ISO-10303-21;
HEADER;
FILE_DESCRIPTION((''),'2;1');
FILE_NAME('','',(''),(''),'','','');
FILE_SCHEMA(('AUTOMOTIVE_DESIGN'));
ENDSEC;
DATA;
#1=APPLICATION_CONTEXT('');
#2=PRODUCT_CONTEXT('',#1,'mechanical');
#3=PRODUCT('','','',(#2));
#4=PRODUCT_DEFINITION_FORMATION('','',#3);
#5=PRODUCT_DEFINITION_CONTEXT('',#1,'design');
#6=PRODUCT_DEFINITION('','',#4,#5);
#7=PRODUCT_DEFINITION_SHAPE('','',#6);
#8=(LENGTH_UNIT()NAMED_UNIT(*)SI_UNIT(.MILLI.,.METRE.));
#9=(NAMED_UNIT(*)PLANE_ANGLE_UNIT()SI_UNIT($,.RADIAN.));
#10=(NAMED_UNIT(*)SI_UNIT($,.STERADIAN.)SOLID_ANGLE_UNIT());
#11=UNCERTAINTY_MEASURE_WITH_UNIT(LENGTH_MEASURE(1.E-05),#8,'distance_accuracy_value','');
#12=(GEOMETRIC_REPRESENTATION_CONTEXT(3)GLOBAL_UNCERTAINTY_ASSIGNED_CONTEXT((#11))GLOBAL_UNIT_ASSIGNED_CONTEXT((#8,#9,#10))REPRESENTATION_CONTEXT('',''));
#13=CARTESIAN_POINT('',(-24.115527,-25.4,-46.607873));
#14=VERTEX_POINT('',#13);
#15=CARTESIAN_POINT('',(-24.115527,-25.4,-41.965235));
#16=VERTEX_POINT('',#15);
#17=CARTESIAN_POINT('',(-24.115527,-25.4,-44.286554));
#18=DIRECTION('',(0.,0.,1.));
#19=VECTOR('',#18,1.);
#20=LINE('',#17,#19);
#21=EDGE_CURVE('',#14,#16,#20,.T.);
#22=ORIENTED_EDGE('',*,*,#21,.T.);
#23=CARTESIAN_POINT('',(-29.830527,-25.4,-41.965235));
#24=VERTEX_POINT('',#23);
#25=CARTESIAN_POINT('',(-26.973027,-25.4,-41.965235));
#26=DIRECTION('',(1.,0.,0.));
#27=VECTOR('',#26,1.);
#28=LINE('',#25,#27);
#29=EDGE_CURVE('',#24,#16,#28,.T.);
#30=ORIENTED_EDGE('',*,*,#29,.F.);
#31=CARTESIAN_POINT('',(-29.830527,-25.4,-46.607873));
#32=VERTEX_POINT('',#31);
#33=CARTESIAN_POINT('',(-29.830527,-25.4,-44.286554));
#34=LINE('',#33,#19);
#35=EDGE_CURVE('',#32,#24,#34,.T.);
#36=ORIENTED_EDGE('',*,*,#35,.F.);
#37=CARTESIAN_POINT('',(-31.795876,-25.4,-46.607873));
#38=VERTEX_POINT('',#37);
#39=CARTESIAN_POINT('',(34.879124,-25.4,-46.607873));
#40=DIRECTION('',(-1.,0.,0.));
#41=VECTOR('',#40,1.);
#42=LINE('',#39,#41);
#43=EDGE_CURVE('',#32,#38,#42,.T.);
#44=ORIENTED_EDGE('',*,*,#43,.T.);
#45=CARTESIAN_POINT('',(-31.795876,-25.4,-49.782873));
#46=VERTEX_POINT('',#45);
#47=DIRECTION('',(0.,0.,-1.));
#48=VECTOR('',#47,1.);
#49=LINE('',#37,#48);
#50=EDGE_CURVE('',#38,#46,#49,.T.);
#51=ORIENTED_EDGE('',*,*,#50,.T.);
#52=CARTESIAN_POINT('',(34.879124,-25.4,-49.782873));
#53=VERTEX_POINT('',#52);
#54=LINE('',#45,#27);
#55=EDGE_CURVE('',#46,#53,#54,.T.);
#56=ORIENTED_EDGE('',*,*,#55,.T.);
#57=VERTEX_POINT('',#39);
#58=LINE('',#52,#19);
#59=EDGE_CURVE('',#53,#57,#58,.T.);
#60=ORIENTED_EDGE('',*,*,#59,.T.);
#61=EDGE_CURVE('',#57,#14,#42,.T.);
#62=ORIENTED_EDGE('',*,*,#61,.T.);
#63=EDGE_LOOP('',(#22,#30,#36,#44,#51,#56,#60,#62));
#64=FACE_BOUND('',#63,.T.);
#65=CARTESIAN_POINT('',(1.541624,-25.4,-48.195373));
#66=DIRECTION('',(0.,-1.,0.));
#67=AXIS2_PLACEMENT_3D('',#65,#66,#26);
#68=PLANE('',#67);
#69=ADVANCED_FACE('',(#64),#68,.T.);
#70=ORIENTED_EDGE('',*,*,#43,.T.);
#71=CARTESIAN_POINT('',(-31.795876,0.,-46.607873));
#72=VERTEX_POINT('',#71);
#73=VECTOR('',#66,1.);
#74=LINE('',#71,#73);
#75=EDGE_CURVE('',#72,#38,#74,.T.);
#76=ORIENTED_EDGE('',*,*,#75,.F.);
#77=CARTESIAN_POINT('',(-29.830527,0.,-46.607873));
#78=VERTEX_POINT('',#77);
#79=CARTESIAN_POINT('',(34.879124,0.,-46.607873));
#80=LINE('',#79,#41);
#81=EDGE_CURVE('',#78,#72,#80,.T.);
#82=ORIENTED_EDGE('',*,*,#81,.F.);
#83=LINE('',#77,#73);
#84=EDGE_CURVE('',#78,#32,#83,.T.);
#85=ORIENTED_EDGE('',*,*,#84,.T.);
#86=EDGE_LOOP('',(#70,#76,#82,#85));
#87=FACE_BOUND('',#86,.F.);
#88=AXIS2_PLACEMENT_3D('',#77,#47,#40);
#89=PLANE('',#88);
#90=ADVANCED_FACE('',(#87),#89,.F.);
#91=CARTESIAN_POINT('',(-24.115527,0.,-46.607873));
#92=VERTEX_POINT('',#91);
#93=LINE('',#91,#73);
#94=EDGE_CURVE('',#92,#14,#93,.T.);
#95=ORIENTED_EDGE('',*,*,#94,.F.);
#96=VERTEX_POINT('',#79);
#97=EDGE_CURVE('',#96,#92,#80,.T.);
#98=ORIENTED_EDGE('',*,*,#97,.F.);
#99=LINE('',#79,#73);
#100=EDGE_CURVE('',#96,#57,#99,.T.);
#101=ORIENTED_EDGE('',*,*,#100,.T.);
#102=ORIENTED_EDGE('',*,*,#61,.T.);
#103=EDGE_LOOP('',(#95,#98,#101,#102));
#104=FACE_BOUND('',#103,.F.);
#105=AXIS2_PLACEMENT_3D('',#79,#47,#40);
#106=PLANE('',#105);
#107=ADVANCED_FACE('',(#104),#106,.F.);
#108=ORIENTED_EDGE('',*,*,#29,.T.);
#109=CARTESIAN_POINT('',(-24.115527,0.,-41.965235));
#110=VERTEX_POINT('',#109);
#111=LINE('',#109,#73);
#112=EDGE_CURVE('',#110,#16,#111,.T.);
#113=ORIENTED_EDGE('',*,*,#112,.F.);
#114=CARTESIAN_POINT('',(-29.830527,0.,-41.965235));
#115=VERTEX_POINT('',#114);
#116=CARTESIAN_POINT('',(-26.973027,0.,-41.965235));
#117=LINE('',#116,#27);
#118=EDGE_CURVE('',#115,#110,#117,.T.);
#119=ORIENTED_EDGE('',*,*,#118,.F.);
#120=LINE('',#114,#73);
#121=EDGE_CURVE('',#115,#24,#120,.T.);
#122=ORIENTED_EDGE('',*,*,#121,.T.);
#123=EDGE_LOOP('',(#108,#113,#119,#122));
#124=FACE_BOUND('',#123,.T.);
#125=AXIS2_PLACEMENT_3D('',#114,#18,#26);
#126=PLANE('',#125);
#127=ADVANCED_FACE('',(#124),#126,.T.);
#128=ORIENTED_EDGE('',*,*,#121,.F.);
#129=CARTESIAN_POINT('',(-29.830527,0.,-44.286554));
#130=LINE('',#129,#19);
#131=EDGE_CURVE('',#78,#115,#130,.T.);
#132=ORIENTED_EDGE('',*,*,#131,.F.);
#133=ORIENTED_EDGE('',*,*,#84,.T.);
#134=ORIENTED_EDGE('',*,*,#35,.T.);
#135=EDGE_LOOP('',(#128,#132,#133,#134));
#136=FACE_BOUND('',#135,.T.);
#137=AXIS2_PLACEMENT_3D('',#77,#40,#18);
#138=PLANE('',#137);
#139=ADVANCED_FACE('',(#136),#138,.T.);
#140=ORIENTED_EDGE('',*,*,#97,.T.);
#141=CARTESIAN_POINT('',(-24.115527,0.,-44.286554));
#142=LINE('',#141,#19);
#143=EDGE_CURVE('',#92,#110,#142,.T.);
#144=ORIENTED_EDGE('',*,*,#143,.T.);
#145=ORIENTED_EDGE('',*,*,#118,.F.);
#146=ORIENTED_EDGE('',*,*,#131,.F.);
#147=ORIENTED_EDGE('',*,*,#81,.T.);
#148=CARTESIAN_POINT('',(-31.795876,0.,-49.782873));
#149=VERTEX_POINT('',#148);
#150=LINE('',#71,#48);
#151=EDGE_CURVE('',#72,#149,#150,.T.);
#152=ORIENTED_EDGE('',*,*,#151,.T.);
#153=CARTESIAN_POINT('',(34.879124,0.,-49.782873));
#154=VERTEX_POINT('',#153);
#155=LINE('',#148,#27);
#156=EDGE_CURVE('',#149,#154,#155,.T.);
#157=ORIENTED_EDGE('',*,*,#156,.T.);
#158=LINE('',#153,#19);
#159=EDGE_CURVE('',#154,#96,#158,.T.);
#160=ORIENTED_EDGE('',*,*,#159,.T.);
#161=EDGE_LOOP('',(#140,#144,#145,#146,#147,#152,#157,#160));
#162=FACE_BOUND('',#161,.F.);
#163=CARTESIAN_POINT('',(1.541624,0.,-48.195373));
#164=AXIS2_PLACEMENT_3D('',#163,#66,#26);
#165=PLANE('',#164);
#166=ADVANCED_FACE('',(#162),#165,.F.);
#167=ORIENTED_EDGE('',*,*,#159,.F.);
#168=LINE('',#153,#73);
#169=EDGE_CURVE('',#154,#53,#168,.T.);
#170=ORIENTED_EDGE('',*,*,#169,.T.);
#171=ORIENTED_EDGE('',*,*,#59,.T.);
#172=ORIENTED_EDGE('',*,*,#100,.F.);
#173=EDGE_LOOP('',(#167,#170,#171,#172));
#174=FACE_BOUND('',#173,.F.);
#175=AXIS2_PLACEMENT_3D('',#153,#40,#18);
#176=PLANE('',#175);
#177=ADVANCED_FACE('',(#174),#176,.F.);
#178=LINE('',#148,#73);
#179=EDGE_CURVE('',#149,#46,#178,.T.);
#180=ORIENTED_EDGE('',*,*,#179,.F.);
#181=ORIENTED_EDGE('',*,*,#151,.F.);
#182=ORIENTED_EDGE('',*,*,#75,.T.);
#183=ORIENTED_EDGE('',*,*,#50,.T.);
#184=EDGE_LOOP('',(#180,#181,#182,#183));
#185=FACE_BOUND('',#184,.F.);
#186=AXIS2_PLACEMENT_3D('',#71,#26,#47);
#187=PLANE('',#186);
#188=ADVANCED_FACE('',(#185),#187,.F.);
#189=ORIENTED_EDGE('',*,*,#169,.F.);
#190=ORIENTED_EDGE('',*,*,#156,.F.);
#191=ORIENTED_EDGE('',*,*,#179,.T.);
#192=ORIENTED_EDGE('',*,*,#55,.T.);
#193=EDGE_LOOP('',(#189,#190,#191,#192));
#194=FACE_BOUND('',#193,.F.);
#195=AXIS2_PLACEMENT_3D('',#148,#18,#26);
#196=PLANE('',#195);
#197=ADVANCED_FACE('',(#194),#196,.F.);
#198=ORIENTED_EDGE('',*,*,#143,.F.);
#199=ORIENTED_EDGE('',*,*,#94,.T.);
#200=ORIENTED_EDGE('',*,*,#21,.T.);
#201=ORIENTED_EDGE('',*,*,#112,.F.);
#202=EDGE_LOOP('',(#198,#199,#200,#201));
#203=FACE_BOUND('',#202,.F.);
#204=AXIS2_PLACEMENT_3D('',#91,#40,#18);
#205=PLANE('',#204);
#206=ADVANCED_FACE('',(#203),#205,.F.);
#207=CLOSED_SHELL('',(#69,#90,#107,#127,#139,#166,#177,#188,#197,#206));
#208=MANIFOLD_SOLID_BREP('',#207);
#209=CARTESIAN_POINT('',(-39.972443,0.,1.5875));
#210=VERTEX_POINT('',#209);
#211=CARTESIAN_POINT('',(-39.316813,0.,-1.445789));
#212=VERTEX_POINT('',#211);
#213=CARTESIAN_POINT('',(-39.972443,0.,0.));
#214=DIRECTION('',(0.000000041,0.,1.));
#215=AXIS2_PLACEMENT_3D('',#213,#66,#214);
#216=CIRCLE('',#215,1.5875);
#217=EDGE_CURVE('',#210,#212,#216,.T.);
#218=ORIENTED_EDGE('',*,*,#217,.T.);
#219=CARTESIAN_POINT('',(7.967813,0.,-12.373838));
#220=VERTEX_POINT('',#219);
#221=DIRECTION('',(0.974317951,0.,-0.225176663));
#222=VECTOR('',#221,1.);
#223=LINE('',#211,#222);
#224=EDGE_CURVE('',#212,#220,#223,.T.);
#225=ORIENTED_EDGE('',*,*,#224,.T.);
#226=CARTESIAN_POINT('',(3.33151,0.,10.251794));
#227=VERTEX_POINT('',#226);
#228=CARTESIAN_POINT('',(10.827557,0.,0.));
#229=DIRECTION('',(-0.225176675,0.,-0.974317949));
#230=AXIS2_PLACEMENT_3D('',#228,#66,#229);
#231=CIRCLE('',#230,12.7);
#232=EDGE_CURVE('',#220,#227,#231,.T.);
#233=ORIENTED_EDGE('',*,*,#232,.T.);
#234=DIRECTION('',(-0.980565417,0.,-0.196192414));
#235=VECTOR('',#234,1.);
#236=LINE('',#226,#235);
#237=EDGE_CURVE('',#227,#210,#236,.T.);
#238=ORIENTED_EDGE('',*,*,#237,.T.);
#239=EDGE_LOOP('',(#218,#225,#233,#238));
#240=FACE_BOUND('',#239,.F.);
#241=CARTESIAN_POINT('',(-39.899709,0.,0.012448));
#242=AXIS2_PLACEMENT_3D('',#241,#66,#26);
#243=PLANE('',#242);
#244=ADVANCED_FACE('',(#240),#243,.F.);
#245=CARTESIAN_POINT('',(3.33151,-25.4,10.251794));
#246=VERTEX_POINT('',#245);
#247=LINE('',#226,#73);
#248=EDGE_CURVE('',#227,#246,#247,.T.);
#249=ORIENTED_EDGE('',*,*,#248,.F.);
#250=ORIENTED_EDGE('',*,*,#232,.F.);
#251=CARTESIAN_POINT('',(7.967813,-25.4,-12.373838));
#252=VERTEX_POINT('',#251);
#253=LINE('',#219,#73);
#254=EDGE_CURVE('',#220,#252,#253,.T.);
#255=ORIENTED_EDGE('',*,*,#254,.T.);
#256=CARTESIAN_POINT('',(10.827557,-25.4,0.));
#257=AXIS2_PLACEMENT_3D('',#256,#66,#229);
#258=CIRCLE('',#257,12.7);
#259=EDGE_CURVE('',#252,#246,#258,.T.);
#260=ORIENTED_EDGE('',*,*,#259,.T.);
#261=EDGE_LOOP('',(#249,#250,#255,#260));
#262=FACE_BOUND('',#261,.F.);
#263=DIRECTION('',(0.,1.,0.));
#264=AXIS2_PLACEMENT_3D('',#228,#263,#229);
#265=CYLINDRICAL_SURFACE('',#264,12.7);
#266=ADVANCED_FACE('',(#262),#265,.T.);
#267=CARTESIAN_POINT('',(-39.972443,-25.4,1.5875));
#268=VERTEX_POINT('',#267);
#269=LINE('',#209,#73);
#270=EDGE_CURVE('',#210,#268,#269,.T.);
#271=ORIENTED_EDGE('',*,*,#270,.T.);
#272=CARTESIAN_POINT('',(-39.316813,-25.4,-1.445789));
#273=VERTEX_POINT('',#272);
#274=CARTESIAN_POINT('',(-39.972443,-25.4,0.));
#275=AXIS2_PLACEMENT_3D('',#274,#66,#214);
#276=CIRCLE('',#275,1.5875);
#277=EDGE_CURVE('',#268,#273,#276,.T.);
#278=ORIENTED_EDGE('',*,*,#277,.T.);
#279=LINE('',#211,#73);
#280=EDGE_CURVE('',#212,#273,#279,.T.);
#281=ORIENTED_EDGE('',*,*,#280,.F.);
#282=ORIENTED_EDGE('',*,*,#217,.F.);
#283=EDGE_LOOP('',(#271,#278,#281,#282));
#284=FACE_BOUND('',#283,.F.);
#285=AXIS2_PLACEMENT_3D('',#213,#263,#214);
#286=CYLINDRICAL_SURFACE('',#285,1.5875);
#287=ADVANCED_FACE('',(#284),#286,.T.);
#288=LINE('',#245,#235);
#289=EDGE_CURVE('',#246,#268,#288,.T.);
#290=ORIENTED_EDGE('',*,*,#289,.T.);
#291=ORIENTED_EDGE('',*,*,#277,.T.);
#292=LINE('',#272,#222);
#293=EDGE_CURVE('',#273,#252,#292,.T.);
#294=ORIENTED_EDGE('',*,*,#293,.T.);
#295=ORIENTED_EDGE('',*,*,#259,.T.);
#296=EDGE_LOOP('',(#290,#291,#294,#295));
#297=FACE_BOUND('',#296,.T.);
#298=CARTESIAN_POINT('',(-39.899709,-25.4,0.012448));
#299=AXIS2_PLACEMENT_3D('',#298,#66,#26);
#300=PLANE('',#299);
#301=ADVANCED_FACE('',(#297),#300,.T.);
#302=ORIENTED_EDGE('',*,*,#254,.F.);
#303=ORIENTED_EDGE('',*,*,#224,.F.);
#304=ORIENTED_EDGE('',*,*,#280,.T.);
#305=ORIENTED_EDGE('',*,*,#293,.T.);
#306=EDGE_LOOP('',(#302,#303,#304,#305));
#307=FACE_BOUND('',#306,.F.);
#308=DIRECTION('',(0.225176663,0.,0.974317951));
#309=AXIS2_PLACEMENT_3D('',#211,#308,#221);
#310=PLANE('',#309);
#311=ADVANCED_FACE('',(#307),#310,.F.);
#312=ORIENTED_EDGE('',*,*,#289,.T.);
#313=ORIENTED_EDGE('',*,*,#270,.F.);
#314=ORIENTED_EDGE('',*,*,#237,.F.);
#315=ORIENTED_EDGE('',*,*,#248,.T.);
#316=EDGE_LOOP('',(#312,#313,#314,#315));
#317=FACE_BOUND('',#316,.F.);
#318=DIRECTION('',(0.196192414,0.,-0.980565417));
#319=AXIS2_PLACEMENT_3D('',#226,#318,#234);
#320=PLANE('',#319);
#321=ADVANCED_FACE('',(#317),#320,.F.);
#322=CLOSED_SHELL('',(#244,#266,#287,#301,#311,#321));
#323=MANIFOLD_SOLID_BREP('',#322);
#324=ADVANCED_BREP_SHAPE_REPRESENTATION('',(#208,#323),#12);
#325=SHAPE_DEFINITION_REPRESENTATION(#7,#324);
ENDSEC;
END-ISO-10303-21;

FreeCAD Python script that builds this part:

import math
import FreeCAD as App
import Part
import Sketcher

V = App.Vector
Q = App.Units.Quantity

doc = App.newDocument("Part")
body = doc.addObject("PartDesign::Body", "Body")
body.AllowCompound = True

# Sketch on XZ plane
sketch1 = body.newObject("Sketcher::SketchObject", "Sketch")
sketch1.AttachmentSupport = (doc.getObject("XZ_Plane"), [""])
sketch1.MapMode = "FlatFace"
sketch1.addGeometry([
    Part.LineSegment(V(-31.8, -46.6, 0), V(-31.8, -49.8, 0)),  # 0
    Part.LineSegment(V(-31.8, -49.8, 0), V(34.9, -49.8, 0)),  # 1
    Part.LineSegment(V(34.9, -49.8, 0), V(34.9, -46.6, 0)),  # 2
    Part.LineSegment(V(34.9, -46.6, 0), V(-24.1, -46.6, 0)),  # 3
    Part.LineSegment(V(-24.1, -46.6, 0), V(-24.1, -42, 0)),  # 4
    Part.LineSegment(V(-24.1, -42, 0), V(-29.8, -42, 0)),  # 5
    Part.LineSegment(V(-29.8, -42, 0), V(-29.8, -46.6, 0)),  # 6
    Part.LineSegment(V(-29.8, -46.6, 0), V(-31.8, -46.6, 0)),  # 7
    Part.ArcOfCircle(Part.Circle(V(-40, 0, 0), V(0, 0, 1), 1.6), math.radians(90), math.radians(294)),  # 8
    Part.LineSegment(V(-39.3, -1.4, 0), V(8, -12.4, 0)),  # 9
    Part.ArcOfCircle(Part.Circle(V(10.8, 0, 0), V(0, 0, 1), 12.7), math.radians(-103), math.radians(126)),  # 10
    Part.LineSegment(V(3.3, 10.3, 0), V(-40, 1.6, 0)),  # 11
], False)
sketch1.addConstraint([
    Sketcher.Constraint("Coincident", 0, 2, 1, 1),
    Sketcher.Constraint("Coincident", 1, 2, 2, 1),
    Sketcher.Constraint("Coincident", 2, 2, 3, 1),
    Sketcher.Constraint("Coincident", 3, 2, 4, 1),
    Sketcher.Constraint("Coincident", 4, 2, 5, 1),
    Sketcher.Constraint("Coincident", 5, 2, 6, 1),
    Sketcher.Constraint("Coincident", 6, 2, 7, 1),
    Sketcher.Constraint("Coincident", 7, 2, 0, 1),
    Sketcher.Constraint("Coincident", 8, 2, 9, 1),
    Sketcher.Constraint("Tangent", 9, 2, 10, 1),
    Sketcher.Constraint("Coincident", 10, 2, 11, 1),
    Sketcher.Constraint("Coincident", 11, 2, 8, 1),
    Sketcher.Constraint("Vertical", 0),
    Sketcher.Constraint("Horizontal", 1),
    Sketcher.Constraint("Vertical", 2),
    Sketcher.Constraint("Horizontal", 3),
    Sketcher.Constraint("Vertical", 4),
    Sketcher.Constraint("Horizontal", 5),
    Sketcher.Constraint("Vertical", 6),
    Sketcher.Constraint("Horizontal", 7),
    Sketcher.Constraint("PointOnObject", 8, 3, -1),
    Sketcher.Constraint("PointOnObject", 10, 3, -1),
    Sketcher.Constraint("Horizontal", 3, 2, 6, 2),
    Sketcher.Constraint("Vertical", 8, 3, 11, 2),
    Sketcher.Constraint("Radius", 10, Q("0.5 in")),
    Sketcher.Constraint("Radius", 8, Q("0.0625 in")),
    Sketcher.Constraint("DistanceX", 8, 3, 10, 3, Q("2 in")),
    Sketcher.Constraint("DistanceX", 1, 1, 1, 2, Q("2.625 in")),
    Sketcher.Constraint("DistanceX", 5, 2, 5, 1, Q("0.225 in")),
    Sketcher.Constraint("DistanceY", 0, 2, 0, 1, Q("0.125 in")),
    Sketcher.Constraint("DistanceX", 8, 2, 7, 2, Q("0.2960999 in")),
    Sketcher.Constraint("Distance", 9, 48.531002),
    Sketcher.Constraint("DistanceX", 3, 2, 3, 1, 58.994651),
    Sketcher.Constraint("DistanceY", 4, 1, 4, 2, 4.642638),
    Sketcher.Constraint("DistanceX", -1, 1, 10, 2, 3.33151),
    Sketcher.Constraint("DistanceY", 9, 2, 10, 2, 22.625632),
    Sketcher.Constraint("DistanceY", 4, 2, 10, 2, 52.217029),
])
pad1 = body.newObject("PartDesign::Pad", "Pad")
pad1.Profile = sketch1
pad1.Length = Q("1 in")

doc.recompute()
